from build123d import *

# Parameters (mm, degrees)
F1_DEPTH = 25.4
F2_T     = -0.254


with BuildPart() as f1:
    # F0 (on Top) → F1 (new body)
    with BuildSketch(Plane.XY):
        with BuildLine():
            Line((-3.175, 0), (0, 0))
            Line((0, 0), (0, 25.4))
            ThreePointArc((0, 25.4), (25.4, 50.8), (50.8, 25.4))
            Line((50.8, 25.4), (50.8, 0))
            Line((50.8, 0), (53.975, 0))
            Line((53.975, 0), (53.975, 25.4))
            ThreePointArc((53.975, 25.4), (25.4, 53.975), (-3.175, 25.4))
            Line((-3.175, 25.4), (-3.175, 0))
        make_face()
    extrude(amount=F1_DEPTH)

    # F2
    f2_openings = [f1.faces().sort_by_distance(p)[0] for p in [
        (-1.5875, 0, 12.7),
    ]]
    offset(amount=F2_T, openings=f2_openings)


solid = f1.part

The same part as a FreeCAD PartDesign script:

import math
import FreeCAD as App
import Part
import Sketcher
Q = App.Units.Quantity


def faces_at(feature, points):
    """Names of the faces that lie closest to the given points."""
    faces = feature.Shape.Faces
    near = lambda p: min(range(len(faces)), key=lambda i: faces[i].distToShape(Part.Vertex(*p))[0])
    return sorted({f"Face{near(p) + 1}" for p in points})

doc = App.newDocument("Part")
body = doc.addObject("PartDesign::Body", "Body")

# Sketch on XY plane
sketch1 = body.newObject("Sketcher::SketchObject", "Sketch")
sketch1.AttachmentSupport = (doc.getObject("XY_Plane"), [""])
sketch1.MapMode = "FlatFace"
sketch1.addGeometry(Part.LineSegment(App.Vector(-3.2, 0, 0), App.Vector(0, 0, 0)), False)
sketch1.addGeometry(Part.LineSegment(App.Vector(0, 0, 0), App.Vector(0, 25.4, 0)), False)
sketch1.addGeometry(Part.ArcOfCircle(Part.Circle(App.Vector(25.4, 25.4, 0), App.Vector(0, 0, 1), 25.4), math.radians(0), math.radians(180)), False)
sketch1.addGeometry(Part.LineSegment(App.Vector(50.8, 25.4, 0), App.Vector(50.8, 0, 0)), False)
sketch1.addGeometry(Part.LineSegment(App.Vector(50.8, 0, 0), App.Vector(54, 0, 0)), False)
sketch1.addGeometry(Part.LineSegment(App.Vector(54, 0, 0), App.Vector(54, 25.4, 0)), False)
sketch1.addGeometry(Part.ArcOfCircle(Part.Circle(App.Vector(25.4, 25.4, 0), App.Vector(0, 0, 1), 28.6), math.radians(0), math.radians(180)), False)
sketch1.addGeometry(Part.LineSegment(App.Vector(-3.2, 25.4, 0), App.Vector(-3.2, 0, 0)), False)
sketch1.addConstraint(Sketcher.Constraint("Coincident", 0, 2, 1, 1))
sketch1.addConstraint(Sketcher.Constraint("Tangent", 1, 2, 2, 2))
sketch1.addConstraint(Sketcher.Constraint("Tangent", 2, 1, 3, 1))
sketch1.addConstraint(Sketcher.Constraint("Coincident", 3, 2, 4, 1))
sketch1.addConstraint(Sketcher.Constraint("Coincident", 4, 2, 5, 1))
sketch1.addConstraint(Sketcher.Constraint("Tangent", 5, 2, 6, 1))
sketch1.addConstraint(Sketcher.Constraint("Tangent", 6, 2, 7, 1))
sketch1.addConstraint(Sketcher.Constraint("Coincident", 7, 2, 0, 1))
sketch1.addConstraint(Sketcher.Constraint("Horizontal", 0))
sketch1.addConstraint(Sketcher.Constraint("Vertical", 1))
sketch1.addConstraint(Sketcher.Constraint("Vertical", 3))
sketch1.addConstraint(Sketcher.Constraint("Horizontal", 4))
sketch1.addConstraint(Sketcher.Constraint("Vertical", 5))
sketch1.addConstraint(Sketcher.Constraint("Vertical", 7))
sketch1.addConstraint(Sketcher.Constraint("Coincident", 0, 2, -1, 1))
sketch1.addConstraint(Sketcher.Constraint("Coincident", 6, 3, 2, 3))
sketch1.addConstraint(Sketcher.Constraint("PointOnObject", 3, 2, -1))
sketch1.addConstraint(Sketcher.Constraint("Radius", 2, Q("1 in")))
sketch1.addConstraint(Sketcher.Constraint("DistanceY", 1, 1, 1, 2, Q("1 in")))
sketch1.addConstraint(Sketcher.Constraint("Radius", 6, Q("1.125 in")))
pad1 = body.newObject("PartDesign::Pad", "Pad")
pad1.Profile = sketch1
pad1.Length = Q("1 in")
doc.recompute()

thickness = body.newObject("PartDesign::Thickness", "Thickness")
thickness.Base = (pad1, faces_at(pad1, [(-1.587, 0, 12.7)]))
thickness.Value = Q("0.01 in")
thickness.Reversed = True
thickness.Join = "Arc"

doc.recompute()
